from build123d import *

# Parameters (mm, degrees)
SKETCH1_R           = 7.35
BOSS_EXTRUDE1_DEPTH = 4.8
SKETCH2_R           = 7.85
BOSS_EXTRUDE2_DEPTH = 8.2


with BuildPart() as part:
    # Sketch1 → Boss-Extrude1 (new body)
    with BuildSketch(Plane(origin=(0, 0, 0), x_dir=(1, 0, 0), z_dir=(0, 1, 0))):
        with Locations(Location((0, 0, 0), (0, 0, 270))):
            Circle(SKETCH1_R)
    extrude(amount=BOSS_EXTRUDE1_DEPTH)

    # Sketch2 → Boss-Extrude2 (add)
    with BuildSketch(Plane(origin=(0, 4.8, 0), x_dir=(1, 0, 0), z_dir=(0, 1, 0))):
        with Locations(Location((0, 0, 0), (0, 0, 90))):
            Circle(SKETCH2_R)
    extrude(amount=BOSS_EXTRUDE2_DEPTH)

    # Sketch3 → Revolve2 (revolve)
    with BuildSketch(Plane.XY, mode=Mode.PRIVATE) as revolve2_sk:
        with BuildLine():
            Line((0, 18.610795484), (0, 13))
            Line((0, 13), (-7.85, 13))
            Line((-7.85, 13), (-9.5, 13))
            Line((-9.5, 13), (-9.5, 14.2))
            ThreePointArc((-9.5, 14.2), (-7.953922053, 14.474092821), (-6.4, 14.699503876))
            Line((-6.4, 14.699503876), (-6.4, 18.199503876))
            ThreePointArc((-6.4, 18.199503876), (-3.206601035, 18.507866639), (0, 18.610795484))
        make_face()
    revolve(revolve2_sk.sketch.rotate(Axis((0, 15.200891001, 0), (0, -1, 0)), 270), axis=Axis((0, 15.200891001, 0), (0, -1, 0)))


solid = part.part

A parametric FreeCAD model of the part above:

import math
import FreeCAD as App
import Part
import Sketcher

V = App.Vector
Q = App.Units.Quantity

doc = App.newDocument("Part")
body = doc.addObject("PartDesign::Body", "Body")

sketch1 = body.newObject("Sketcher::SketchObject", "Sketch")
sketch1.AttachmentSupport = (doc.getObject("XZ_Plane"), [""])
sketch1.MapMode = "FlatFace"
sketch1.addGeometry(Part.Circle(V(0, 0, 0), V(0, 0, 1), 7), False)
sketch1.addConstraint([
    Sketcher.Constraint("Coincident", 0, 3, -1, 1),
    Sketcher.Constraint("Diameter", 0, Q("14.7 mm")),
])
pad1 = body.newObject("PartDesign::Pad", "Pad")
pad1.Profile = sketch1
pad1.Length = 4.8
pad1.Reversed = True

sketch2 = body.newObject("Sketcher::SketchObject", "Sketch001")
sketch2.AttachmentSupport = (doc.getObject("XZ_Plane"), [""])
sketch2.MapMode = "FlatFace"
sketch2.AttachmentOffset = App.Placement(V(0, 0, -4.8), App.Rotation())
sketch2.addGeometry(Part.Circle(V(0, 0, 0), V(0, 0, 1), 8), False)
sketch2.addConstraint([
    Sketcher.Constraint("Coincident", 0, 3, -1, 1),
    Sketcher.Constraint("Diameter", 0, Q("15.7 mm")),
])
pad2 = body.newObject("PartDesign::Pad", "Pad001")
pad2.Profile = sketch2
pad2.Length = 8.2
pad2.Reversed = True

sketch3 = body.newObject("Sketcher::SketchObject", "Sketch002")
sketch3.AttachmentSupport = (doc.getObject("XY_Plane"), [""])
sketch3.MapMode = "FlatFace"
sketch3.addGeometry([
    Part.LineSegment(V(0, 13, 0), V(0, 18.6, 0)),
    Part.ArcOfCircle(Part.Circle(V(0, -31.4, 0), V(0, 0, 1), 50), math.radians(90), math.radians(97.35)),
    Part.LineSegment(V(-6.4, 18.2, 0), V(-6.4, 14.7, 0)),
    Part.ArcOfCircle(Part.Circle(V(0, -34.9, 0), V(0, 0, 1), 50), math.radians(97.35), math.radians(100.95)),
    Part.LineSegment(V(-9.5, 14.2, 0), V(-9.5, 13, 0)),
    Part.LineSegment(V(-9.5, 13, 0), V(0, 13, 0)),
], False)
sketch3.addConstraint([
    Sketcher.Constraint("Coincident", 0, 2, 1, 1),
    Sketcher.Constraint("Coincident", 1, 2, 2, 1),
    Sketcher.Constraint("Coincident", 2, 2, 3, 1),
    Sketcher.Constraint("Coincident", 3, 2, 4, 1),
    Sketcher.Constraint("Coincident", 4, 2, 5, 1),
    Sketcher.Constraint("Coincident", 5, 2, 0, 1),
    Sketcher.Constraint("Vertical", 0),
    Sketcher.Constraint("Vertical", 2),
    Sketcher.Constraint("Vertical", 4),
    Sketcher.Constraint("Horizontal", 5),
    Sketcher.Constraint("Equal", 1, 3),
    Sketcher.Constraint("PointOnObject", 1, 3, -2),
    Sketcher.Constraint("PointOnObject", 3, 3, -2),
    Sketcher.Constraint("PointOnObject", 0, 2, -2),
    Sketcher.Constraint("Radius", 1, Q("50 mm")),
    Sketcher.Constraint("DistanceX", 5, 1, 5, 2, Q("9.5 mm")),
    Sketcher.Constraint("DistanceY", 2, 2, 2, 1, Q("3.5 mm")),
    Sketcher.Constraint("DistanceY", 4, 2, 4, 1, Q("1.2 mm")),
    Sketcher.Constraint("DistanceY", -1, 1, 4, 2, Q("13 mm")),
    Sketcher.Constraint("DistanceX", 1, 2, -1, 1, Q("6.4 mm")),
])
revolution = body.newObject("PartDesign::Revolution", "Revolution")
revolution.Profile = sketch3
revolution.ReferenceAxis = (sketch3, ["V_Axis"])
revolution.Angle = 360

doc.recompute()
